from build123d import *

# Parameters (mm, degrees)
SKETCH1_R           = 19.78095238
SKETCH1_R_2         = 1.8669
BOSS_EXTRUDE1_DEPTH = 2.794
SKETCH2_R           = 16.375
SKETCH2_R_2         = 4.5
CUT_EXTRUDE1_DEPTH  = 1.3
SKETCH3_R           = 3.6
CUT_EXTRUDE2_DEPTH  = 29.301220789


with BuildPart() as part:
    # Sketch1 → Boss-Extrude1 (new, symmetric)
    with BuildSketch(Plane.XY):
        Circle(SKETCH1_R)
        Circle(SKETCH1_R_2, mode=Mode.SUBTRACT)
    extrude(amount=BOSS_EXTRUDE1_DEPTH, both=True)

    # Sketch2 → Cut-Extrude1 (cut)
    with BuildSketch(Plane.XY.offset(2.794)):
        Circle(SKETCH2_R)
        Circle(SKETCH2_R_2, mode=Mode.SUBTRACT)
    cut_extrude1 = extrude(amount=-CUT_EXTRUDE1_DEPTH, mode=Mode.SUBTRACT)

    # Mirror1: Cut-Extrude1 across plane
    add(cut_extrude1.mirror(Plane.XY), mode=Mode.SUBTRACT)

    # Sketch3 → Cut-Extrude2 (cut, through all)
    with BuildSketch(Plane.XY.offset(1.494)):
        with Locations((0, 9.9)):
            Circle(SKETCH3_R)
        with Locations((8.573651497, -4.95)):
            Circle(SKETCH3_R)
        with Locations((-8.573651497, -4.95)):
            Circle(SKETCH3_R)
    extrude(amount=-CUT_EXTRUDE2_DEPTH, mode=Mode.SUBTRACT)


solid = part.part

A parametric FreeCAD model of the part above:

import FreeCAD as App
import Part
import Sketcher

doc = App.newDocument("Part")
body = doc.addObject("PartDesign::Body", "Body")

# Sketch on XY plane
sketch1 = body.newObject("Sketcher::SketchObject", "Sketch")
sketch1.AttachmentSupport = (doc.getObject("XY_Plane"), [""])
sketch1.MapMode = "FlatFace"
sketch1.addGeometry(Part.Circle(App.Vector(0, 0, 0), App.Vector(0, 0, 1), 19.8), False)
sketch1.addGeometry(Part.Circle(App.Vector(0, 0, 0), App.Vector(0, 0, 1), 1.9), False)
sketch1.addConstraint(Sketcher.Constraint("Coincident", 0, 3, -1, 1))
sketch1.addConstraint(Sketcher.Constraint("Coincident", 1, 3, -1, 1))
sketch1.addConstraint(Sketcher.Constraint("Diameter", 1, 3.7338))
sketch1.addConstraint(Sketcher.Constraint("Diameter", 0, 39.561905))
pad1 = body.newObject("PartDesign::Pad", "Pad")
pad1.Profile = sketch1
pad1.Length = 5.588
pad1.Midplane = True

# Sketch on XY plane
sketch2 = body.newObject("Sketcher::SketchObject", "Sketch001")
sketch2.AttachmentSupport = (doc.getObject("XY_Plane"), [""])
sketch2.MapMode = "FlatFace"
sketch2.AttachmentOffset = App.Placement(App.Vector(0, 0, 2.794), App.Rotation())
sketch2.addGeometry(Part.Circle(App.Vector(0, 0, 0), App.Vector(0, 0, 1), 16.4), False)
sketch2.addGeometry(Part.Circle(App.Vector(0, 0, 0), App.Vector(0, 0, 1), 4.5), False)
sketch2.addConstraint(Sketcher.Constraint("Coincident", 0, 3, -1, 1))
sketch2.addConstraint(Sketcher.Constraint("Coincident", 1, 3, -1, 1))
sketch2.addConstraint(Sketcher.Constraint("Diameter", 1, 9.0))
sketch2.addConstraint(Sketcher.Constraint("Diameter", 0, 32.75))
pocket1 = body.newObject("PartDesign::Pocket", "Pocket")
pocket1.Profile = sketch2
pocket1.Length = 1.3
doc.recompute()

mirrored = body.newObject("PartDesign::Mirrored", "Mirrored")
mirrored.Originals = [pocket1]
mirrored.MirrorPlane = (doc.getObject("XY_Plane"), [""])
body.Tip = mirrored

# Sketch on XY plane
sketch3 = body.newObject("Sketcher::SketchObject", "Sketch002")
sketch3.AttachmentSupport = (doc.getObject("XY_Plane"), [""])
sketch3.MapMode = "FlatFace"
sketch3.AttachmentOffset = App.Placement(App.Vector(0, 0, 1.494), App.Rotation())
sketch3.addGeometry(Part.Circle(App.Vector(0, 9.9, 0), App.Vector(0, 0, 1), 3.6), False)
sketch3.addGeometry(Part.Circle(App.Vector(8.6, -5, 0), App.Vector(0, 0, 1), 3.6), False)
sketch3.addGeometry(Part.Circle(App.Vector(-8.6, -5, 0), App.Vector(0, 0, 1), 3.6), False)
sketch3.addConstraint(Sketcher.Constraint("Equal", 0, 1))
sketch3.addConstraint(Sketcher.Constraint("Equal", 1, 2))
sketch3.addConstraint(Sketcher.Constraint("Symmetric", 1, 3, 2, 3, -2))
sketch3.addConstraint(Sketcher.Constraint("PointOnObject", 0, 3, -2))
sketch3.addConstraint(Sketcher.Constraint("Diameter", 0, 7.2))
sketch3.addConstraint(Sketcher.Constraint("DistanceY", -1, 1, 0, 3, 9.9))
sketch3.addConstraint(Sketcher.Constraint("DistanceY", 1, 3, -1, 1, 4.95))
sketch3.addConstraint(Sketcher.Constraint("DistanceX", -1, 1, 1, 3, 8.573651))
pocket2 = body.newObject("PartDesign::Pocket", "Pocket001")
pocket2.Profile = sketch3
pocket2.Type = "ThroughAll"

doc.recompute()
